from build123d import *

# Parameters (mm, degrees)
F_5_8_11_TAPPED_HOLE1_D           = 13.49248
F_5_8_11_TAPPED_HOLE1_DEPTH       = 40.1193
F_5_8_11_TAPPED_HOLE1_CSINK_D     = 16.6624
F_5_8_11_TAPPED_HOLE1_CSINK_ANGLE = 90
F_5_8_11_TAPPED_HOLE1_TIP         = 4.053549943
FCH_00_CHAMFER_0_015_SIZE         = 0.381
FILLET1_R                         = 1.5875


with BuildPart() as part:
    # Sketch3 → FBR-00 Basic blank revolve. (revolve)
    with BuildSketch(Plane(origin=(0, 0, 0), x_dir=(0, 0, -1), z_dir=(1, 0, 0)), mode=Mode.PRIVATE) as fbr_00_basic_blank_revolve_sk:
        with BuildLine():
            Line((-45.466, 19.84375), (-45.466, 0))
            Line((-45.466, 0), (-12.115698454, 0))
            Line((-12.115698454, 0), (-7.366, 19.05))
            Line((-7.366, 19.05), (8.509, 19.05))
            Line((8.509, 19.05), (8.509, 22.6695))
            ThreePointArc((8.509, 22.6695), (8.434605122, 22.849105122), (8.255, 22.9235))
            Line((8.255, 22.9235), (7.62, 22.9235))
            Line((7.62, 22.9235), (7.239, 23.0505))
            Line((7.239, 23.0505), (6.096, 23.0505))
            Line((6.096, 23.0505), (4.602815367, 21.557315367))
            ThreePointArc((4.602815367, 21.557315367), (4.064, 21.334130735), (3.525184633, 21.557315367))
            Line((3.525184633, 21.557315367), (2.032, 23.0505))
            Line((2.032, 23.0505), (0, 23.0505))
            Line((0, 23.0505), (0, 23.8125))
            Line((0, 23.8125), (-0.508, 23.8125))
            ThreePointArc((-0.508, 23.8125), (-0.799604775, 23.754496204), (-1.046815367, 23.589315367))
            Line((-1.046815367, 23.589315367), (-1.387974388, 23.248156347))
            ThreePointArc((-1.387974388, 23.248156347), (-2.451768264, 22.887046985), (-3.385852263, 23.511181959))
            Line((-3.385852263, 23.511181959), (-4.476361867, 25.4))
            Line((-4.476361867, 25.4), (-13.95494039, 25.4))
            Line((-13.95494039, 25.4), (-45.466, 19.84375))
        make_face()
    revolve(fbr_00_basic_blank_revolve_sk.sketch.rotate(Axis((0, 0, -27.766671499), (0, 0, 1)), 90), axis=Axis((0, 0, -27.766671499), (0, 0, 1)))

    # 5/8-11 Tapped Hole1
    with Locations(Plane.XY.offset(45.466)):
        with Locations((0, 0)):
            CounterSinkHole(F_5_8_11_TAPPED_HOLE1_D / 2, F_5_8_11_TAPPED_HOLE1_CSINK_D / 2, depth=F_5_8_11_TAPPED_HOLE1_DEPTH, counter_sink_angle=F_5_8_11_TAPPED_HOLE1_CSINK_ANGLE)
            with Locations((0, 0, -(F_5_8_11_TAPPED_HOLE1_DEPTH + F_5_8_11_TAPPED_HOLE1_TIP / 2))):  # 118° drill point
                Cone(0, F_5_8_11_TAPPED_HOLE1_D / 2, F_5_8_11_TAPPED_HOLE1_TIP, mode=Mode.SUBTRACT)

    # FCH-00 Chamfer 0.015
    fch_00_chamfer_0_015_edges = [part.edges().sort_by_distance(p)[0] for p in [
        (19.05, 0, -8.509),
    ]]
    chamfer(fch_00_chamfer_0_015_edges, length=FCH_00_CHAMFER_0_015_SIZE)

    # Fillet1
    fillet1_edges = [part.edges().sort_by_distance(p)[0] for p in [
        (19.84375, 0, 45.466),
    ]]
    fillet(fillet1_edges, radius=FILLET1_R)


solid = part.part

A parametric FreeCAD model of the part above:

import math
import FreeCAD as App
import Part
import Sketcher

V = App.Vector
Q = App.Units.Quantity


def edges_at(feature, points):
    """Names of the edges that pass closest to the given points."""
    edges = feature.Shape.Edges
    near = lambda p: min(range(len(edges)), key=lambda i: edges[i].distToShape(Part.Vertex(*p))[0])
    return sorted({f"Edge{near(p) + 1}" for p in points})

doc = App.newDocument("Part")
params = doc.addObject("Spreadsheet::Sheet", "Params")
for row, (alias, value) in enumerate([
    ("sketch1_radius", "0.01 in"),
    ("sketch1_radius2", "0.03 in"),
    ("sketch1_radius3", "0.05 in"),
    ("sketch1_height", "0.08 in"),
    ("sketch1_height2", "0.02 in"),
    ("revolution_angle", "360 deg"),
    ("hole_diameter", "0.5312 in"),
    ("hole_depth", "1.5795 in"),
    ("hole_csink_diameter", "0.656 in"),
    ("chamfer_size", "0.015 in"),
    ("fillet_radius", "0.0625 in"),
], start=1):
    params.set(f"A{row}", alias)
    params.set(f"B{row}", "=" + value)
    params.setAlias(f"B{row}", alias)

body = doc.addObject("PartDesign::Body", "Body")

sketch1 = body.newObject("Sketcher::SketchObject", "Sketch")
sketch1.AttachmentSupport = (doc.getObject("YZ_Plane"), [""])
sketch1.MapMode = "FlatFace"
sketch1.addGeometry([
    Part.LineSegment(V(19.84, 45.47, 0), V(0, 45.47, 0)),
    Part.LineSegment(V(0, 45.47, 0), V(0, 12.12, 0)),
    Part.LineSegment(V(0, 12.12, 0), V(19.05, 7.37, 0)),
    Part.LineSegment(V(19.05, 7.37, 0), V(19.05, -8.51, 0)),
    Part.LineSegment(V(19.05, -8.51, 0), V(22.67, -8.51, 0)),
    Part.ArcOfCircle(Part.Circle(V(22.67, -8.25, 0), V(0, 0, 1), 0.25), math.radians(-90), math.radians(0)),
    Part.LineSegment(V(22.92, -8.26, 0), V(22.92, -7.62, 0)),
    Part.LineSegment(V(22.92, -7.62, 0), V(23.05, -7.24, 0)),
    Part.LineSegment(V(23.05, -7.24, 0), V(23.05, -6.1, 0)),
    Part.LineSegment(V(23.05, -6.1, 0), V(21.56, -4.6, 0)),
    Part.ArcOfCircle(Part.Circle(V(22.1, -4.06, 0), V(0, 0, 1), 0.76), math.radians(135), math.radians(225)),
    Part.LineSegment(V(21.56, -3.53, 0), V(23.05, -2.03, 0)),
    Part.LineSegment(V(23.05, -2.03, 0), V(23.05, 0, 0)),
    Part.LineSegment(V(23.05, 0, 0), V(23.81, 0, 0)),
    Part.LineSegment(V(23.81, 0, 0), V(23.81, 0.51, 0)),
    Part.ArcOfCircle(Part.Circle(V(23.05, 0.51, 0), V(0, 0, 1), 0.76), math.radians(0), math.radians(45)),
    Part.LineSegment(V(23.59, 1.05, 0), V(23.25, 1.39, 0)),
    Part.ArcOfCircle(Part.Circle(V(24.15, 2.29, 0), V(0, 0, 1), 1.27), math.radians(120), math.radians(225)),
    Part.LineSegment(V(23.51, 3.39, 0), V(25.4, 4.48, 0)),
    Part.LineSegment(V(25.4, 4.48, 0), V(25.4, 13.95, 0)),
    Part.LineSegment(V(25.4, 13.95, 0), V(19.84, 45.47, 0)),
], False)
sketch1.addConstraint([
    Sketcher.Constraint("Coincident", 0, 2, 1, 1),
    Sketcher.Constraint("Coincident", 1, 2, 2, 1),
    Sketcher.Constraint("Coincident", 2, 2, 3, 1),
    Sketcher.Constraint("Coincident", 3, 2, 4, 1),
    Sketcher.Constraint("Tangent", 4, 2, 5, 1),
    Sketcher.Constraint("Tangent", 5, 2, 6, 1),
    Sketcher.Constraint("Coincident", 6, 2, 7, 1),
    Sketcher.Constraint("Coincident", 7, 2, 8, 1),
    Sketcher.Constraint("Coincident", 8, 2, 9, 1),
    Sketcher.Constraint("Tangent", 9, 2, 10, 2),
    Sketcher.Constraint("Tangent", 10, 1, 11, 1),
    Sketcher.Constraint("Coincident", 11, 2, 12, 1),
    Sketcher.Constraint("Coincident", 12, 2, 13, 1),
    Sketcher.Constraint("Coincident", 13, 2, 14, 1),
    Sketcher.Constraint("Tangent", 14, 2, 15, 1),
    Sketcher.Constraint("Tangent", 15, 2, 16, 1),
    Sketcher.Constraint("Tangent", 16, 2, 17, 2),
    Sketcher.Constraint("Tangent", 17, 1, 18, 1),
    Sketcher.Constraint("Coincident", 18, 2, 19, 1),
    Sketcher.Constraint("Coincident", 19, 2, 20, 1),
    Sketcher.Constraint("Coincident", 20, 2, 0, 1),
    Sketcher.Constraint("Horizontal", 0),
    Sketcher.Constraint("Vertical", 1),
    Sketcher.Constraint("Vertical", 3),
    Sketcher.Constraint("Horizontal", 4),
    Sketcher.Constraint("Vertical", 6),
    Sketcher.Constraint("Vertical", 8),
    Sketcher.Constraint("Vertical", 12),
    Sketcher.Constraint("Horizontal", 13),
    Sketcher.Constraint("Vertical", 14),
    Sketcher.Constraint("Vertical", 19),
    Sketcher.Constraint("Equal", 10, 15),
    Sketcher.Constraint("PointOnObject", 0, 2, -2),
    Sketcher.Constraint("PointOnObject", 12, 2, -1),
    Sketcher.Constraint("Perpendicular", 9, 11),
    Sketcher.Constraint("Perpendicular", 11, 16),
    Sketcher.Constraint("Vertical", 15, 3, 7, 2),
    Sketcher.Constraint("Vertical", 9, 2, 10, 1),
    Sketcher.Constraint("Vertical", 8, 2, 11, 2),
    Sketcher.Constraint("Radius", 5, Q("0.01 in")),
    Sketcher.Constraint("Radius", 10, Q("0.03 in")),
    Sketcher.Constraint("Radius", 17, Q("0.05 in")),
    Sketcher.Constraint("DistanceX", -1, 1, 18, 2, Q("1 in")),
    Sketcher.Constraint("Angle", 2, Q("-14 deg")),
    Sketcher.Constraint("Angle", 18, Q("30 deg")),
    Sketcher.Constraint("Angle", 20, Q("100 deg")),
    Sketcher.Constraint("DistanceY", 12, 1, 12, 2, Q("0.08 in")),
    Sketcher.Constraint("DistanceY", 14, 1, 14, 2, Q("0.02 in")),
    Sketcher.Constraint("DistanceY", 6, 2, -1, 1, Q("0.3 in")),
    Sketcher.Constraint("DistanceY", 17, 3, 0, 2, Q("1.7 in")),
    Sketcher.Constraint("DistanceY", 17, 3, 2, 2, Q("0.2 in")),
    Sketcher.Constraint("DistanceX", 0, 2, 0, 1, Q("0.78125 in")),
    Sketcher.Constraint("DistanceY", 3, 2, 3, 1, Q("0.625 in")),
    Sketcher.Constraint("DistanceY", 6, 1, 6, 2, Q("0.025 in")),
    Sketcher.Constraint("DistanceY", 8, 1, 8, 2, Q("0.045 in")),
    Sketcher.Constraint("DistanceY", 10, 3, -1, 1, Q("0.16 in")),
    Sketcher.Constraint("DistanceX", -1, 1, 2, 2, Q("0.75 in")),
    Sketcher.Constraint("DistanceX", 4, 1, 4, 2, Q("0.1425 in")),
    Sketcher.Constraint("DistanceX", -1, 1, 13, 2, Q("0.9375 in")),
])
sketch1.setExpression("Constraints[39]", "Params.sketch1_radius")
sketch1.setExpression("Constraints[40]", "Params.sketch1_radius2")
sketch1.setExpression("Constraints[41]", "Params.sketch1_radius3")
sketch1.setExpression("Constraints[46]", "Params.sketch1_height")
sketch1.setExpression("Constraints[47]", "Params.sketch1_height2")
revolution = body.newObject("PartDesign::Revolution", "Revolution")
revolution.Profile = sketch1
revolution.ReferenceAxis = (sketch1, ["V_Axis"])
revolution.setExpression("Angle", "Params.revolution_angle")

sketch2 = body.newObject("Sketcher::SketchObject", "Sketch001")
sketch2.AttachmentSupport = (doc.getObject("XY_Plane"), [""])
sketch2.MapMode = "FlatFace"
sketch2.AttachmentOffset = App.Placement(V(0, 0, 1.79 * 25.4), App.Rotation())
sketch2.addGeometry(Part.Circle(V(0, 0, 0), V(0, 0, 1), 7), False)
sketch2.addConstraint([
    Sketcher.Constraint("Coincident", 0, 3, -1, 1),
    Sketcher.Constraint("Diameter", 0, Q("0.5312 in")),
])
doc.recompute()
hole = body.newObject("PartDesign::Hole", "Hole")
hole.Profile = sketch2
hole.ThreadType = "None"
hole.setExpression("Diameter", "Params.hole_diameter")
hole.DepthType = "Dimension"
hole.setExpression("Depth", "Params.hole_depth")
hole.DrillPoint = "Angled"
hole.DrillPointAngle = 118
hole.HoleCutType = "Countersink"
hole.setExpression("HoleCutDiameter", "Params.hole_csink_diameter")
hole.HoleCutCountersinkAngle = 90
doc.recompute()

chamfer = body.newObject("PartDesign::Chamfer", "Chamfer")
chamfer.Base = (hole, edges_at(hole, [(19.05, 0, -8.509)]))
chamfer.setExpression("Size", "Params.chamfer_size")
doc.recompute()

fillet = body.newObject("PartDesign::Fillet", "Fillet")
fillet.Base = (chamfer, edges_at(chamfer, [(19.844, 0, 45.466)]))
fillet.setExpression("Radius", "Params.fillet_radius")

doc.recompute()
